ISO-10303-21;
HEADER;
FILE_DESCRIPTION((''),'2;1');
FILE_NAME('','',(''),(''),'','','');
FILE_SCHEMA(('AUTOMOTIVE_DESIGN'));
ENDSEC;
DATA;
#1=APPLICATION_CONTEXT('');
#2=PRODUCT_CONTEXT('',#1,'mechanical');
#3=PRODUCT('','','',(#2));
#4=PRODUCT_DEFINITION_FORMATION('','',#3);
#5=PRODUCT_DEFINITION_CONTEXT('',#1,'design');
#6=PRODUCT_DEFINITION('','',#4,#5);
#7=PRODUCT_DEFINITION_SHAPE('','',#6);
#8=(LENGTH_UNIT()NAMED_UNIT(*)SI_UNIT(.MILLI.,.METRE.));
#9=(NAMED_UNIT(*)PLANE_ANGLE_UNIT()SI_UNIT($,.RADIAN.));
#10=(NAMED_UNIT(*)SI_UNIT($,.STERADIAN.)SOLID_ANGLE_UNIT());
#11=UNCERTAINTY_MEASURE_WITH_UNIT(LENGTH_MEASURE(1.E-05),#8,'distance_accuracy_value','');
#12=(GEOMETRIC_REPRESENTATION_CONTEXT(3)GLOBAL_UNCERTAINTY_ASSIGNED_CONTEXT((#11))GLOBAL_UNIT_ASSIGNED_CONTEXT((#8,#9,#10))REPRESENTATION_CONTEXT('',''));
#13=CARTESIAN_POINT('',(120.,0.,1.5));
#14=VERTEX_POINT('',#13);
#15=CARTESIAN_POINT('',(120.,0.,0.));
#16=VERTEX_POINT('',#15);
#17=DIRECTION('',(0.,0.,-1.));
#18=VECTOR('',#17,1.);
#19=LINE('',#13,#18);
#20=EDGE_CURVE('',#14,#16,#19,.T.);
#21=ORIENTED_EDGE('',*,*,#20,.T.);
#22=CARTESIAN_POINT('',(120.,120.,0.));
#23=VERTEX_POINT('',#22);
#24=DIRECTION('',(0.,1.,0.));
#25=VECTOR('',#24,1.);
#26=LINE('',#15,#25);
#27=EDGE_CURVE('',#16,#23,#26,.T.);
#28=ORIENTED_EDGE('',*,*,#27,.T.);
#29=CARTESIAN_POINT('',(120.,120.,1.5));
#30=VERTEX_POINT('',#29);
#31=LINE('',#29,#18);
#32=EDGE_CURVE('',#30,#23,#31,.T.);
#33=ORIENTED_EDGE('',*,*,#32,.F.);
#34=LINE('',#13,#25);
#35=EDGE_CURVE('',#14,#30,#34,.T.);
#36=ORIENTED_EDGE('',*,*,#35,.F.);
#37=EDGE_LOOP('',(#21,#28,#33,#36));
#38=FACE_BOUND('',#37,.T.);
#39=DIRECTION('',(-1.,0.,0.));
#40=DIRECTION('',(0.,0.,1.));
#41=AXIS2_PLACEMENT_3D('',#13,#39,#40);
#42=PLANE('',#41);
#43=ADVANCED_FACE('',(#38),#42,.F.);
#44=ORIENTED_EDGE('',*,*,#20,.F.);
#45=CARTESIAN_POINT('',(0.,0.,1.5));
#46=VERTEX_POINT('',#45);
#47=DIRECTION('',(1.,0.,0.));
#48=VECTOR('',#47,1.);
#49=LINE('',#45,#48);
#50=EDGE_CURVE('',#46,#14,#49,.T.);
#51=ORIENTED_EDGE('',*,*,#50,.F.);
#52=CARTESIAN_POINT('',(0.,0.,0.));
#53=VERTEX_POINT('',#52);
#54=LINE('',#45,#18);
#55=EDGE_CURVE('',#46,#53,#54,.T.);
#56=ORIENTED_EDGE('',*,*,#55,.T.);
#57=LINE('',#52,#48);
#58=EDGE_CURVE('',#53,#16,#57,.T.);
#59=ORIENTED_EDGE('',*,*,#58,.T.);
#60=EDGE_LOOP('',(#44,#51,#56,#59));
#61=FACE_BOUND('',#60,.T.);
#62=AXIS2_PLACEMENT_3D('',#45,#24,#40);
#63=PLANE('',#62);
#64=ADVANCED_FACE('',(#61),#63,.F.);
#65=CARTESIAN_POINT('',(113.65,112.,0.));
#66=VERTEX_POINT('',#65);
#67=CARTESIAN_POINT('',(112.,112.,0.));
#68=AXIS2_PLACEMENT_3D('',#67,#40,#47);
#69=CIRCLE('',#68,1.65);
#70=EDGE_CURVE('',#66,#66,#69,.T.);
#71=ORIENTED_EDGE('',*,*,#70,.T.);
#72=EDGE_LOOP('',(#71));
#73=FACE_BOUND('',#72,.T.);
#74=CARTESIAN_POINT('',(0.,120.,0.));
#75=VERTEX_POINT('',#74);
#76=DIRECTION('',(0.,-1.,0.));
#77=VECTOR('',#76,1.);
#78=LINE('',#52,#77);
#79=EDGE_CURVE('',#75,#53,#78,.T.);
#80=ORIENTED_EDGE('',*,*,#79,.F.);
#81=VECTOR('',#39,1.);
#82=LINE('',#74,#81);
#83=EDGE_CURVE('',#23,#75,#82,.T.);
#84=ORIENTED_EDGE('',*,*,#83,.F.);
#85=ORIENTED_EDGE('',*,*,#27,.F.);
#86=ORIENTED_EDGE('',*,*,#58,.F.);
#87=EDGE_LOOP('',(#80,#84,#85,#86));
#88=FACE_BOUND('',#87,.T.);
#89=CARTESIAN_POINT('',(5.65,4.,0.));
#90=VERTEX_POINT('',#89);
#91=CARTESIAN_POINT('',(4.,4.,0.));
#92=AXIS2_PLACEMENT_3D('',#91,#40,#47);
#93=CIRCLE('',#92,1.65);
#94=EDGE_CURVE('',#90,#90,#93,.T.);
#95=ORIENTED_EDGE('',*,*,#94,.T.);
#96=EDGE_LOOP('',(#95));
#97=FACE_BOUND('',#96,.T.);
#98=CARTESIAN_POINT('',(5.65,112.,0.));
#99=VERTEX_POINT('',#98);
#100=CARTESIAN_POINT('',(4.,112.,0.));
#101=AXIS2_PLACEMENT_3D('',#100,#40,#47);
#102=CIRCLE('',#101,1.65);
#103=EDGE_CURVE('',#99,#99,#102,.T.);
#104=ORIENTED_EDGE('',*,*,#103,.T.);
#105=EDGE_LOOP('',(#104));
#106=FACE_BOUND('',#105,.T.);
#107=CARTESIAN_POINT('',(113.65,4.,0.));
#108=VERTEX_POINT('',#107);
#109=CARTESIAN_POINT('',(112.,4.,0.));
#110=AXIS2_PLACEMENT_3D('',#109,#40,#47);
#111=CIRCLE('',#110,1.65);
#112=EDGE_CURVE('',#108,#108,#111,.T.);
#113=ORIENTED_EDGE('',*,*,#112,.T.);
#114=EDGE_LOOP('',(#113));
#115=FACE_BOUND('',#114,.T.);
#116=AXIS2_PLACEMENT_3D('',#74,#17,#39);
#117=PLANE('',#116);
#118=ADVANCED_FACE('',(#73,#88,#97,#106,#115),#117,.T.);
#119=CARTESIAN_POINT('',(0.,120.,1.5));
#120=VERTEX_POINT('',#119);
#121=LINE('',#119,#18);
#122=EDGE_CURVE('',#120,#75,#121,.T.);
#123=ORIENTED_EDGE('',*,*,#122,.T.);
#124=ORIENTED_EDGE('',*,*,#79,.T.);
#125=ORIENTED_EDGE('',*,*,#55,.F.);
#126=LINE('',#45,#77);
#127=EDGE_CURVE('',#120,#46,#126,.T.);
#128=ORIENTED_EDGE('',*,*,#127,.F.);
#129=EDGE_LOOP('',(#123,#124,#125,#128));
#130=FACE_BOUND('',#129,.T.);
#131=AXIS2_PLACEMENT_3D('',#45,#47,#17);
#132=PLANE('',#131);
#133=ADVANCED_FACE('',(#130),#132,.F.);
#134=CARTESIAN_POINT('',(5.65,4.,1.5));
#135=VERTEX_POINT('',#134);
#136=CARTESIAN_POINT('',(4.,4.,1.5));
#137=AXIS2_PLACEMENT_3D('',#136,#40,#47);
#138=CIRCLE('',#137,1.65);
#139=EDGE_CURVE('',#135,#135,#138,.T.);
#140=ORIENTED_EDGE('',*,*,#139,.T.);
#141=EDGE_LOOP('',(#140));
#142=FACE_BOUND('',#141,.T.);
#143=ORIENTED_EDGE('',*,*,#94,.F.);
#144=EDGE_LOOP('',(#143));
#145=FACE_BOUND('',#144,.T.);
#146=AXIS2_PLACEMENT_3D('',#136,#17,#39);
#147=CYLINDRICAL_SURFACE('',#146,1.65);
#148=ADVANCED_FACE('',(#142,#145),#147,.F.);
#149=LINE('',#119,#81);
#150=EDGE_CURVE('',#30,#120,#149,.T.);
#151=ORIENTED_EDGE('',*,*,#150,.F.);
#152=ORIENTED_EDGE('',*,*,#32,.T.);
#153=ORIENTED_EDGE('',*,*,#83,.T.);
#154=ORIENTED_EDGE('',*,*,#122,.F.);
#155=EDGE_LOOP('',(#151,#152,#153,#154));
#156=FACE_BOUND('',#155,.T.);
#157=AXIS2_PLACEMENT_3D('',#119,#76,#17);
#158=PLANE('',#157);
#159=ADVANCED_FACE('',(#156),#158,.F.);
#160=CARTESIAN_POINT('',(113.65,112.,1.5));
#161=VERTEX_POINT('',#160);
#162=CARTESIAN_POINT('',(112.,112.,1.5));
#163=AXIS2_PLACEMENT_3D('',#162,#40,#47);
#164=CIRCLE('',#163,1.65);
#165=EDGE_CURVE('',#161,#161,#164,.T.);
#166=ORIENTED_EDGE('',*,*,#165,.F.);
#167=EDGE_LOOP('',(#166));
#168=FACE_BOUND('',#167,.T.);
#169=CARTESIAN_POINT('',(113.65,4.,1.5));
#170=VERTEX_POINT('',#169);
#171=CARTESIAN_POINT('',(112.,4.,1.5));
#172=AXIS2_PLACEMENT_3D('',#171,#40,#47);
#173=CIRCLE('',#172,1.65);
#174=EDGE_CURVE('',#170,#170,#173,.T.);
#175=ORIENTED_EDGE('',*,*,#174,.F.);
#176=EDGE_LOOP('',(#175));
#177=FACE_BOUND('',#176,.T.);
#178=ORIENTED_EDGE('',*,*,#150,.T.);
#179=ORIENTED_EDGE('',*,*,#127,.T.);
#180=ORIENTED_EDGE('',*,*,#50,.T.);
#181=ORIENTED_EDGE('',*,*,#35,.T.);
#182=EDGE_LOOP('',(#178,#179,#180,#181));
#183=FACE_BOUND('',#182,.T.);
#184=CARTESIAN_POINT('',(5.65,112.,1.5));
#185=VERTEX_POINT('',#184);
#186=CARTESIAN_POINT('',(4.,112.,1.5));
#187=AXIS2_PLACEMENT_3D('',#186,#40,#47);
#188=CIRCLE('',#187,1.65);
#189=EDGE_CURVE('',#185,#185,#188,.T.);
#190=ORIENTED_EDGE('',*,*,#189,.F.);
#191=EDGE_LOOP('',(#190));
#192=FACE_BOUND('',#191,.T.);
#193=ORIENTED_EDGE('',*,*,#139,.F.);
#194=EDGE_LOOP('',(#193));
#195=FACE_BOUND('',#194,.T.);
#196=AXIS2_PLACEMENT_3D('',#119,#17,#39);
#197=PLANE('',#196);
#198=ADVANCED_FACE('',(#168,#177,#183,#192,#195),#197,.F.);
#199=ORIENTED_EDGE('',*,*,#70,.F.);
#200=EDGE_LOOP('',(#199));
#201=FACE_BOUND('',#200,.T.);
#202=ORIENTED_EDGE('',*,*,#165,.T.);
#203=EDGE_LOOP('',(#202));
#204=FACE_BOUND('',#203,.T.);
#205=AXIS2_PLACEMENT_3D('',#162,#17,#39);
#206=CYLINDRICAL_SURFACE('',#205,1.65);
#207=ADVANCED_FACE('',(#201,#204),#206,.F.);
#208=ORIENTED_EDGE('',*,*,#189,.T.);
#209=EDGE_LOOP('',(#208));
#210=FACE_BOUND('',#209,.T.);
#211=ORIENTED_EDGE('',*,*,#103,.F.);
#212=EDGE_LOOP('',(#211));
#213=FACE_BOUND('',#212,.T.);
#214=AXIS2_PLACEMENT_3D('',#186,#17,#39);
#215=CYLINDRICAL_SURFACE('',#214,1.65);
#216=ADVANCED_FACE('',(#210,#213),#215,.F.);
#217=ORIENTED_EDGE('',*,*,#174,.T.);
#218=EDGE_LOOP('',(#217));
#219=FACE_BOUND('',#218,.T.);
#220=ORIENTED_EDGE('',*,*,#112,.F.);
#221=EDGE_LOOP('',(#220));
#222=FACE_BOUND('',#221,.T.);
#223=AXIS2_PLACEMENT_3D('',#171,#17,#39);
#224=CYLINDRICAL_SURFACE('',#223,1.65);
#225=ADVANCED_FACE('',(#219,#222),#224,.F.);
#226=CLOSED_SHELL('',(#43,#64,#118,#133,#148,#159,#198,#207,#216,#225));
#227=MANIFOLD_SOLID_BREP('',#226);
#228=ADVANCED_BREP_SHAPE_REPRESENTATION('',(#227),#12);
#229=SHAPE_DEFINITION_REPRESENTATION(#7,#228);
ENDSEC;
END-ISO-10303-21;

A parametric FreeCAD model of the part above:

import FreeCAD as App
import Part
import Sketcher
from FreeCAD import Vector
Q = App.Units.Quantity

doc = App.newDocument("Part")
body = doc.addObject("PartDesign::Body", "Body")

# Sketch on XY plane
sketch1 = body.newObject("Sketcher::SketchObject", "Sketch")
sketch1.AttachmentSupport = (doc.getObject("XY_Plane"), [""])
sketch1.MapMode = "FlatFace"
sketch1.addGeometry(Part.LineSegment(Vector(0, 120, 0), Vector(0, 0, 0)), False)
sketch1.addGeometry(Part.LineSegment(Vector(0, 0, 0), Vector(120, 0, 0)), False)
sketch1.addGeometry(Part.LineSegment(Vector(120, 0, 0), Vector(120, 120, 0)), False)
sketch1.addGeometry(Part.LineSegment(Vector(120, 120, 0), Vector(0, 120, 0)), False)
sketch1.addGeometry(Part.Circle(Vector(4, 4, 0), Vector(0, 0, 1), 1.6), False)
sketch1.addGeometry(Part.Circle(Vector(112, 4, 0), Vector(0, 0, 1), 1.6), False)
sketch1.addGeometry(Part.Circle(Vector(4, 112, 0), Vector(0, 0, 1), 1.6), False)
sketch1.addGeometry(Part.Circle(Vector(112, 112, 0), Vector(0, 0, 1), 1.6), False)
sketch1.addConstraint(Sketcher.Constraint("Coincident", 0, 2, 1, 1))
sketch1.addConstraint(Sketcher.Constraint("Coincident", 1, 2, 2, 1))
sketch1.addConstraint(Sketcher.Constraint("Coincident", 2, 2, 3, 1))
sketch1.addConstraint(Sketcher.Constraint("Coincident", 3, 2, 0, 1))
sketch1.addConstraint(Sketcher.Constraint("Vertical", 0))
sketch1.addConstraint(Sketcher.Constraint("Horizontal", 1))
sketch1.addConstraint(Sketcher.Constraint("Vertical", 2))
sketch1.addConstraint(Sketcher.Constraint("Horizontal", 3))
sketch1.addConstraint(Sketcher.Constraint("Coincident", 0, 2, -1, 1))
sketch1.addConstraint(Sketcher.Constraint("Equal", 4, 5))
sketch1.addConstraint(Sketcher.Constraint("Equal", 5, 6))
sketch1.addConstraint(Sketcher.Constraint("Equal", 6, 7))
sketch1.addConstraint(Sketcher.Constraint("Horizontal", 4, 3, 5, 3))
sketch1.addConstraint(Sketcher.Constraint("Horizontal", 6, 3, 7, 3))
sketch1.addConstraint(Sketcher.Constraint("Vertical", 4, 3, 6, 3))
sketch1.addConstraint(Sketcher.Constraint("Vertical", 5, 3, 7, 3))
sketch1.addConstraint(Sketcher.Constraint("Equal", 3, 0))
sketch1.addConstraint(Sketcher.Constraint("Diameter", 4, Q("3.3 mm")))
sketch1.addConstraint(Sketcher.Constraint("DistanceX", 1, 1, 1, 2, Q("120 mm")))
sketch1.addConstraint(Sketcher.Constraint("DistanceX", -1, 1, 4, 3, Q("4 mm")))
sketch1.addConstraint(Sketcher.Constraint("DistanceY", -1, 1, 4, 3, Q("4 mm")))
sketch1.addConstraint(Sketcher.Constraint("DistanceX", -1, 1, 5, 3, Q("112 mm")))
sketch1.addConstraint(Sketcher.Constraint("DistanceY", -1, 1, 6, 3, Q("112 mm")))
pad1 = body.newObject("PartDesign::Pad", "Pad")
pad1.Profile = sketch1
pad1.Length = 1.5

doc.recompute()
